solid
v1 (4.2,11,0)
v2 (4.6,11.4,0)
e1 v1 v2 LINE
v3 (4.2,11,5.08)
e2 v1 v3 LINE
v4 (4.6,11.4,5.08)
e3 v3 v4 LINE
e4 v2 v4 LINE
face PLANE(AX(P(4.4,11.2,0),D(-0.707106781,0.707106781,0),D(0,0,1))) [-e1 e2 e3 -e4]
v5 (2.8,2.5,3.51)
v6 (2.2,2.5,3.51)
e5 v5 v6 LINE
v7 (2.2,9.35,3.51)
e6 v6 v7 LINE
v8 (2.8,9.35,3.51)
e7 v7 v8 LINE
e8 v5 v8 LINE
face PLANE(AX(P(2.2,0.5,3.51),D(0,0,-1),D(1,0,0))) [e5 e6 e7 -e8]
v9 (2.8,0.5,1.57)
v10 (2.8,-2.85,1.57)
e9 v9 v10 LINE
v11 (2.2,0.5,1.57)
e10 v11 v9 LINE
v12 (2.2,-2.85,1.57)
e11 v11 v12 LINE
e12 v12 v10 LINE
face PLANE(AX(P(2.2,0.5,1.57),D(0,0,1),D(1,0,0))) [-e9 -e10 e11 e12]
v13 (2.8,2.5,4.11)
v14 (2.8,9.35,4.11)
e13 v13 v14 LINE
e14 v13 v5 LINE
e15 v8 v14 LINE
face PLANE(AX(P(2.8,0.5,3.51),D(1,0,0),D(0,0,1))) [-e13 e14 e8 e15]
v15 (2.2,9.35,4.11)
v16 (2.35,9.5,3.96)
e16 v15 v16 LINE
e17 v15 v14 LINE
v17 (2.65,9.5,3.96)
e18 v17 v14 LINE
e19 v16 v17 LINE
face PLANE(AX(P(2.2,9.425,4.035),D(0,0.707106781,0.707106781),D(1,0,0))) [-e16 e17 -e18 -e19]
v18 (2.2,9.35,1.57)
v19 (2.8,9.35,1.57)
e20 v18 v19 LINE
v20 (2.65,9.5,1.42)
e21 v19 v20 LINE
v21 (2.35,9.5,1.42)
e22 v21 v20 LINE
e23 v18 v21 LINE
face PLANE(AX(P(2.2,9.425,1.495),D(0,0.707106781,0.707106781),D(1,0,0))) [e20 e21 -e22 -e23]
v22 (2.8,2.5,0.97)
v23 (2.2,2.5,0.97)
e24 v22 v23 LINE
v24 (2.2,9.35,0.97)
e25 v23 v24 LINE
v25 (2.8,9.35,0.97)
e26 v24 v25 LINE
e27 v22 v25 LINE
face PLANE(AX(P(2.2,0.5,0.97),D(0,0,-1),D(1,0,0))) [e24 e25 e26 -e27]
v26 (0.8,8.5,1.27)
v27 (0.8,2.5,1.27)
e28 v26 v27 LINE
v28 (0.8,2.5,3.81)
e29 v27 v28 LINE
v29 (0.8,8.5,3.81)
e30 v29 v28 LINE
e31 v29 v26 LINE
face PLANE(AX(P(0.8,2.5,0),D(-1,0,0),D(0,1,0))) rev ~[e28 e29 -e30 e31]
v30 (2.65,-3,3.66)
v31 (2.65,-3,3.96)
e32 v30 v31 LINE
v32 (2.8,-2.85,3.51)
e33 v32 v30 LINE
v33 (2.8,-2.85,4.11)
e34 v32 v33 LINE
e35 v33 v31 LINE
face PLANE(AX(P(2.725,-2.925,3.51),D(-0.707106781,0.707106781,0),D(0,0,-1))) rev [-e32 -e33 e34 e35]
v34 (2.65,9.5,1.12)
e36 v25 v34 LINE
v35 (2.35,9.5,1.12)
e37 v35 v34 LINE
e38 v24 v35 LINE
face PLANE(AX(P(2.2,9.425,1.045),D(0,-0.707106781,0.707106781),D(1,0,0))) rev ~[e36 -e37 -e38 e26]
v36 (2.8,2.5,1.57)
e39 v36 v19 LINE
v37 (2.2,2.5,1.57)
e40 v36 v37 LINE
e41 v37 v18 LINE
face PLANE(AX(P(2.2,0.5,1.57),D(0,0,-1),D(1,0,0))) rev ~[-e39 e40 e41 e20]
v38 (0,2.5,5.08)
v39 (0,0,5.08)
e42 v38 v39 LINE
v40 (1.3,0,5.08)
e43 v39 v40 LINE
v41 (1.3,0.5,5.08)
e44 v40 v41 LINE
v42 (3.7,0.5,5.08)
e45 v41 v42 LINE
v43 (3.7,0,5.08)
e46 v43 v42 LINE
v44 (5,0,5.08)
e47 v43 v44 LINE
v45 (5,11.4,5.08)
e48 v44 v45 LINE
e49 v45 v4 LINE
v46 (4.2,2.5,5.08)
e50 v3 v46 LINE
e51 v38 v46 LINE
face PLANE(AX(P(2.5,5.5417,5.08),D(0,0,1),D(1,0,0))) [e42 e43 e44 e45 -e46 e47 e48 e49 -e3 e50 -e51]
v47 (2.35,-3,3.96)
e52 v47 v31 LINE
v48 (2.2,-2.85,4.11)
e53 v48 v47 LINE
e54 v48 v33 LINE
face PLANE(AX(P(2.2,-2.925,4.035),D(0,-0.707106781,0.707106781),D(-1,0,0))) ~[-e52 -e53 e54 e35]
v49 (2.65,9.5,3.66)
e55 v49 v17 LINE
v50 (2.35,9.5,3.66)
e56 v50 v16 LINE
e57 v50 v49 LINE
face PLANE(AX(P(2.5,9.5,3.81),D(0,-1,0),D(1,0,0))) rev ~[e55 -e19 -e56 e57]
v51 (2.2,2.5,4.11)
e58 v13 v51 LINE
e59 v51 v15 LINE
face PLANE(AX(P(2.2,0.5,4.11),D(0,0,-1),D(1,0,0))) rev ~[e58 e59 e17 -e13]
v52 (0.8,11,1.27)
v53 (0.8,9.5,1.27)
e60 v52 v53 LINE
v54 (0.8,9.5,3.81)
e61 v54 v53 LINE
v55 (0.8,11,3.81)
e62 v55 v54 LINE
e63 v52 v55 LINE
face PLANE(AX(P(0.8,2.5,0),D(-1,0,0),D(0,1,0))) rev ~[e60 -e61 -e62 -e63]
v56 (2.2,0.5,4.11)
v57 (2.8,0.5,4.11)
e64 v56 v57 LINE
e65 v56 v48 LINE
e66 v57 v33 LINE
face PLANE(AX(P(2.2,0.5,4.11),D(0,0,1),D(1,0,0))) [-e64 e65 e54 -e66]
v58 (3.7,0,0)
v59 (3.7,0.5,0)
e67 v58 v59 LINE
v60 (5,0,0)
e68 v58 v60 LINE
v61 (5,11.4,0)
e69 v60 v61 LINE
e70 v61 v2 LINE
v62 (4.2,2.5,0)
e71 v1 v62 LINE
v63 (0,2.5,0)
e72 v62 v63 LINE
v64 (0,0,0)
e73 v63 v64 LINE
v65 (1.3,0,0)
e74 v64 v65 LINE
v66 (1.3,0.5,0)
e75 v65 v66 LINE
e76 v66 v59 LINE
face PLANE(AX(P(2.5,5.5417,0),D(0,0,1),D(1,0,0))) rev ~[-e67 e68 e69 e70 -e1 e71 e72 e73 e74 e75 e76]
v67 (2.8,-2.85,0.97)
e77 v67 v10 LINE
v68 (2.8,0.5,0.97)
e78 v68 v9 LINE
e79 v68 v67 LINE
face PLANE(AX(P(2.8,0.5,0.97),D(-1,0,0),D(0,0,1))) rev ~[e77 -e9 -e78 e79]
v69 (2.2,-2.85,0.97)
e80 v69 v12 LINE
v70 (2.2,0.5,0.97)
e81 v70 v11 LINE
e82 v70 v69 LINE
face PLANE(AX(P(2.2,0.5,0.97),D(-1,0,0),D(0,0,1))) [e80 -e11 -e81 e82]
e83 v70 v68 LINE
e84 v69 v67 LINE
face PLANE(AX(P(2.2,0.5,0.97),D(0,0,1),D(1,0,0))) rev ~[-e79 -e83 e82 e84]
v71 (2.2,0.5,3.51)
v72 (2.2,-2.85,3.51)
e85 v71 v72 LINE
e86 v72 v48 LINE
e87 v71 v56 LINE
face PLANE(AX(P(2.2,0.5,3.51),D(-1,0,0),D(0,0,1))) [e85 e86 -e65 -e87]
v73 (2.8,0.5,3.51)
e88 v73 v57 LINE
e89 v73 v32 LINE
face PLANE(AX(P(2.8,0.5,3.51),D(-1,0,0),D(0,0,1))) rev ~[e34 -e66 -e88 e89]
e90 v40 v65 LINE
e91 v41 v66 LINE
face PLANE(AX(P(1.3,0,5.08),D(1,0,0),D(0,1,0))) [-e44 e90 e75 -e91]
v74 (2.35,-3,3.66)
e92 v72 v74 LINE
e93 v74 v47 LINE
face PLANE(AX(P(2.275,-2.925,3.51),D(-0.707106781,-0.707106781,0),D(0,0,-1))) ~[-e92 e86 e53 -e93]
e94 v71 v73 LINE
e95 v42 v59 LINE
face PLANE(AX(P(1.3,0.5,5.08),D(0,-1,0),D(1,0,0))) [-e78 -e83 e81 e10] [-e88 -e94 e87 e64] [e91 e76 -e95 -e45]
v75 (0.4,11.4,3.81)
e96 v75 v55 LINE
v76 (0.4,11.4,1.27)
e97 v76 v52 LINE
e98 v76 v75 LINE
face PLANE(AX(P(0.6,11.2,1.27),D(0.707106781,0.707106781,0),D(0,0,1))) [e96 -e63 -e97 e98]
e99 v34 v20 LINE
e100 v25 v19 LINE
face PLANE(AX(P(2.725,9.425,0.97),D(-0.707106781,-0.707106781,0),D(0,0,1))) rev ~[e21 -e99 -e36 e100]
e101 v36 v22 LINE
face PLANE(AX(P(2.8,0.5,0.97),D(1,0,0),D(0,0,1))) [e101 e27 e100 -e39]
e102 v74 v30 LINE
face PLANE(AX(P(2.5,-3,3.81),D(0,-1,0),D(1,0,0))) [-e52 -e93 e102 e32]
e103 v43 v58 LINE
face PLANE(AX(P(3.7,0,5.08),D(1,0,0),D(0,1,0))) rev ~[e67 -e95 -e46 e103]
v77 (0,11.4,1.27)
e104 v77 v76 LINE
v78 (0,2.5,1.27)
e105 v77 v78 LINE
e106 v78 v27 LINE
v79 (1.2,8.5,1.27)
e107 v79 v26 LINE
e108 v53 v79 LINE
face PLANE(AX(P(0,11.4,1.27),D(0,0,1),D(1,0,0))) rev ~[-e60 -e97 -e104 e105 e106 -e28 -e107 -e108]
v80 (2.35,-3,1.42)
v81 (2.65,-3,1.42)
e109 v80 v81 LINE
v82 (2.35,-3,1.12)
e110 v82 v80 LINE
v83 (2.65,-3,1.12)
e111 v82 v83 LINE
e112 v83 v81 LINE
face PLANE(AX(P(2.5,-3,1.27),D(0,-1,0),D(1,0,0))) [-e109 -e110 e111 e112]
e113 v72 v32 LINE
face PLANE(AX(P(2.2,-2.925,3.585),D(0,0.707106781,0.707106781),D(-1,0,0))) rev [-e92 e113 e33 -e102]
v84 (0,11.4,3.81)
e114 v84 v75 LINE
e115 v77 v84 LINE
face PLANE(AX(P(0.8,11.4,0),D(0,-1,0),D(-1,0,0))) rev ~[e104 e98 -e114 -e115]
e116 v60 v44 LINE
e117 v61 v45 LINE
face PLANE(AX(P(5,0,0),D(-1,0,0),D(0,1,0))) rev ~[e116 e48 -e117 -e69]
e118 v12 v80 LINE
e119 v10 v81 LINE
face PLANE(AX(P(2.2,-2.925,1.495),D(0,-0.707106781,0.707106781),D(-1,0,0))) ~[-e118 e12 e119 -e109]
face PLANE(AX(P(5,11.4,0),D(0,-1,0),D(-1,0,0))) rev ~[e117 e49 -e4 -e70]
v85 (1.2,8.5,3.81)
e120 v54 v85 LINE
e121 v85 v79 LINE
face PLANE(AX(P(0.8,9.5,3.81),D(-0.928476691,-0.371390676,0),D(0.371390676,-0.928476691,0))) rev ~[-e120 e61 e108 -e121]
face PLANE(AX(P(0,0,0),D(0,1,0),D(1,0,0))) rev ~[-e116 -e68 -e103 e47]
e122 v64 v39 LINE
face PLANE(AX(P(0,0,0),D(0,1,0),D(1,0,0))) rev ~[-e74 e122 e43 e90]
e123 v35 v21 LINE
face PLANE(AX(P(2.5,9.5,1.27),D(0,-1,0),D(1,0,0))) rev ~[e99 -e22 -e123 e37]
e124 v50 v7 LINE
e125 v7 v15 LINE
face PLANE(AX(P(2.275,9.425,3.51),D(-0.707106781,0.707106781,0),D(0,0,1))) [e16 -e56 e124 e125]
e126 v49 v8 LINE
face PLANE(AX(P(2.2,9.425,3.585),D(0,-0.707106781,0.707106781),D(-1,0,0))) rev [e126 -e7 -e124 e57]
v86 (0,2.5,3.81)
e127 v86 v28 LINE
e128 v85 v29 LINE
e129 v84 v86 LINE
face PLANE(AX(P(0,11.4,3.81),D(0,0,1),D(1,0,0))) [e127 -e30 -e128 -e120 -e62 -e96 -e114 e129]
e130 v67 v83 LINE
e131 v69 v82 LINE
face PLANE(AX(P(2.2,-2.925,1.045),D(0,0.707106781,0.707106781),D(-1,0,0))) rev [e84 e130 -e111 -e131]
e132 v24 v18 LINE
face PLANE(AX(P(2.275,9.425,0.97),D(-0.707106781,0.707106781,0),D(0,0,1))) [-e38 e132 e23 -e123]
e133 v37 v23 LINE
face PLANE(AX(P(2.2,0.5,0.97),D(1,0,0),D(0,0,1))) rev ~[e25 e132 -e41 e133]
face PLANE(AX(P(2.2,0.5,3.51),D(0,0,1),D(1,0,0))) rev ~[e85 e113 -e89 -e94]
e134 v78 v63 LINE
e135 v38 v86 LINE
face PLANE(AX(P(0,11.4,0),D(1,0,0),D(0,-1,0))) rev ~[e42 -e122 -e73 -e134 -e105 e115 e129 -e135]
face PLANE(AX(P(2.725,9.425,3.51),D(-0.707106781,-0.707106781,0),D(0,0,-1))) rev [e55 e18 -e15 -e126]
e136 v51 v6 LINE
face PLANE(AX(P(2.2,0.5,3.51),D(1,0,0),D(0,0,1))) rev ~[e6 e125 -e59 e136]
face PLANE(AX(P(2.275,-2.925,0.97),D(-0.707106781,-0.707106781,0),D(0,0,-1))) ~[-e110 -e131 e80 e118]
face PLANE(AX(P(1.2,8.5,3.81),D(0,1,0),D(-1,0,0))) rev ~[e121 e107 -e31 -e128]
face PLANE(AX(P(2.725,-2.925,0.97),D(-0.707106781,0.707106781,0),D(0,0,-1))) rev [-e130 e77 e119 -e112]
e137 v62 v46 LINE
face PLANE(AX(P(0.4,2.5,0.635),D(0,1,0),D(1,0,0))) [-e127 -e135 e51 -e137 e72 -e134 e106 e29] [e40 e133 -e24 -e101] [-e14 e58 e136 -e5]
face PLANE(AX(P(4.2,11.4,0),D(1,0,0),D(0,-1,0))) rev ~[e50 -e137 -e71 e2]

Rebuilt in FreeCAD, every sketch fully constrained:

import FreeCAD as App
import Part
import Sketcher


def edges_at(feature, points):
    """Names of the edges that pass closest to the given points."""
    edges = feature.Shape.Edges
    near = lambda p: min(range(len(edges)), key=lambda i: edges[i].distToShape(Part.Vertex(*p))[0])
    return sorted({f"Edge{near(p) + 1}" for p in points})


def add_polygon(sketch, points):
    """Adds a closed chain of lines whose ends are joined by coincident constraints."""
    first, n = sketch.GeometryCount, len(points)
    for a, b in zip(points, points[1:] + points[:1]):
        sketch.addGeometry(Part.LineSegment(App.Vector(*a, 0), App.Vector(*b, 0)), False)
    for i in range(n):
        sketch.addConstraint(Sketcher.Constraint("Coincident", first + i, 2, first + (i + 1) % n, 1))

doc = App.newDocument("Part")
body = doc.addObject("PartDesign::Body", "Body")

# Sketch on XY plane
sketch1 = body.newObject("Sketcher::SketchObject", "Sketch")
sketch1.AttachmentSupport = (doc.getObject("XY_Plane"), [""])
sketch1.MapMode = "FlatFace"
add_polygon(sketch1, [(0, 11.4), (0, 0), (5, 0), (5, 11.4), (4.2, 11.4), (4.2, 2.5), (0.8, 2.5), (0.8, 11.4)])  # lines 0-7
sketch1.addConstraint(Sketcher.Constraint("Vertical", 0))
sketch1.addConstraint(Sketcher.Constraint("Horizontal", 1))
sketch1.addConstraint(Sketcher.Constraint("Vertical", 2))
sketch1.addConstraint(Sketcher.Constraint("Horizontal", 3))
sketch1.addConstraint(Sketcher.Constraint("Vertical", 4))
sketch1.addConstraint(Sketcher.Constraint("Horizontal", 5))
sketch1.addConstraint(Sketcher.Constraint("Vertical", 6))
sketch1.addConstraint(Sketcher.Constraint("Horizontal", 7))
sketch1.addConstraint(Sketcher.Constraint("Coincident", 0, 2, -1, 1))
sketch1.addConstraint(Sketcher.Constraint("Horizontal", 3, 2, 6, 2))
sketch1.addConstraint(Sketcher.Constraint("Equal", 3, 7))
sketch1.addConstraint(Sketcher.Constraint("DistanceX", 1, 1, 1, 2, 5.0))
sketch1.addConstraint(Sketcher.Constraint("DistanceX", 3, 2, 3, 1, 0.8))
sketch1.addConstraint(Sketcher.Constraint("DistanceY", 0, 2, 0, 1, 11.4))
sketch1.addConstraint(Sketcher.Constraint("DistanceY", 4, 2, 4, 1, 8.9))
pad1 = body.newObject("PartDesign::Pad", "Pad")
pad1.Profile = sketch1
pad1.Length = 5.08

# Sketch on XZ plane
sketch2 = body.newObject("Sketcher::SketchObject", "Sketch001")
sketch2.AttachmentSupport = (doc.getObject("XZ_Plane"), [""])
sketch2.MapMode = "FlatFace"
sketch2.AttachmentOffset = App.Placement(App.Vector(0, 0, -11.4), App.Rotation())
add_polygon(sketch2, [(0, 0), (0, 1.3), (0.8, 1.3), (0.8, 0)])  # lines 0-3
add_polygon(sketch2, [(0, 3.8), (0, 5.1), (0.8, 5.1), (0.8, 3.8)])  # lines 4-7
sketch2.addConstraint(Sketcher.Constraint("Vertical", 0))
sketch2.addConstraint(Sketcher.Constraint("Horizontal", 1))
sketch2.addConstraint(Sketcher.Constraint("Vertical", 2))
sketch2.addConstraint(Sketcher.Constraint("Horizontal", 3))
sketch2.addConstraint(Sketcher.Constraint("Vertical", 4))
sketch2.addConstraint(Sketcher.Constraint("Horizontal", 5))
sketch2.addConstraint(Sketcher.Constraint("Vertical", 6))
sketch2.addConstraint(Sketcher.Constraint("Horizontal", 7))
sketch2.addConstraint(Sketcher.Constraint("Coincident", 3, 2, -1, 1))
sketch2.addConstraint(Sketcher.Constraint("PointOnObject", 4, 2, -2))
sketch2.addConstraint(Sketcher.Constraint("Vertical", 2, 2, 5, 2))
sketch2.addConstraint(Sketcher.Constraint("Equal", 2, 4))
sketch2.addConstraint(Sketcher.Constraint("DistanceX", 1, 1, 1, 2, 0.8))
sketch2.addConstraint(Sketcher.Constraint("DistanceY", 0, 1, 0, 2, 1.27))
sketch2.addConstraint(Sketcher.Constraint("DistanceY", -1, 1, 4, 2, 5.08))
pocket1 = body.newObject("PartDesign::Pocket", "Pocket")
pocket1.Profile = sketch2
pocket1.Length = 8.9
pocket1.Reversed = True

# Sketch on XY plane
sketch3 = body.newObject("Sketcher::SketchObject", "Sketch002")
sketch3.AttachmentSupport = (doc.getObject("XY_Plane"), [""])
sketch3.MapMode = "FlatFace"
sketch3.AttachmentOffset = App.Placement(App.Vector(0, 0, 5.08), App.Rotation())
add_polygon(sketch3, [(1.3, 0.5), (1.3, 0), (3.7, 0), (3.7, 0.5)])  # lines 0-3
sketch3.addConstraint(Sketcher.Constraint("Vertical", 0))
sketch3.addConstraint(Sketcher.Constraint("Horizontal", 1))
sketch3.addConstraint(Sketcher.Constraint("Vertical", 2))
sketch3.addConstraint(Sketcher.Constraint("Horizontal", 3))
sketch3.addConstraint(Sketcher.Constraint("PointOnObject", 0, 2, -1))
sketch3.addConstraint(Sketcher.Constraint("DistanceX", 1, 1, 1, 2, 2.4))
sketch3.addConstraint(Sketcher.Constraint("DistanceY", 0, 2, 0, 1, 0.5))
sketch3.addConstraint(Sketcher.Constraint("DistanceX", -1, 1, 0, 2, 1.3))
pocket2 = body.newObject("PartDesign::Pocket", "Pocket001")
pocket2.Profile = sketch3
pocket2.Type = "ThroughAll"

# Sketch on XZ plane
sketch4 = body.newObject("Sketcher::SketchObject", "Sketch003")
sketch4.AttachmentSupport = (doc.getObject("XZ_Plane"), [""])
sketch4.MapMode = "FlatFace"
sketch4.AttachmentOffset = App.Placement(App.Vector(0, 0, -0.5), App.Rotation())
add_polygon(sketch4, [(2.2, 4.1), (2.2, 3.5), (2.8, 3.5), (2.8, 4.1)])  # lines 0-3
add_polygon(sketch4, [(2.2, 1.6), (2.2, 1), (2.8, 1), (2.8, 1.6)])  # lines 4-7
sketch4.addConstraint(Sketcher.Constraint("Vertical", 0))
sketch4.addConstraint(Sketcher.Constraint("Horizontal", 1))
sketch4.addConstraint(Sketcher.Constraint("Vertical", 2))
sketch4.addConstraint(Sketcher.Constraint("Horizontal", 3))
sketch4.addConstraint(Sketcher.Constraint("Vertical", 4))
sketch4.addConstraint(Sketcher.Constraint("Horizontal", 5))
sketch4.addConstraint(Sketcher.Constraint("Vertical", 6))
sketch4.addConstraint(Sketcher.Constraint("Horizontal", 7))
sketch4.addConstraint(Sketcher.Constraint("Vertical", 3, 2, 4, 2))
sketch4.addConstraint(Sketcher.Constraint("Vertical", 2, 2, 5, 2))
sketch4.addConstraint(Sketcher.Constraint("Equal", 7, 0))
sketch4.addConstraint(Sketcher.Constraint("Equal", 2, 4))
sketch4.addConstraint(Sketcher.Constraint("DistanceX", 1, 1, 1, 2, 0.6))
sketch4.addConstraint(Sketcher.Constraint("DistanceX", -1, 1, 0, 2, 2.2))
sketch4.addConstraint(Sketcher.Constraint("DistanceY", -1, 1, 0, 2, 3.51))
sketch4.addConstraint(Sketcher.Constraint("DistanceY", -1, 1, 4, 2, 0.97))
pad2 = body.newObject("PartDesign::Pad", "Pad001")
pad2.Profile = sketch4
pad2.Type = "TwoLengths"
pad2.Length = 3.5
pad2.Length2 = 9

# Sketch on XY plane
sketch5 = body.newObject("Sketcher::SketchObject", "Sketch004")
sketch5.AttachmentSupport = (doc.getObject("XY_Plane"), [""])
sketch5.MapMode = "FlatFace"
sketch5.AttachmentOffset = App.Placement(App.Vector(0, 0, 3.81), App.Rotation())
add_polygon(sketch5, [(1.2, 8.5), (0.8, 9.5), (0.8, 8.5)])  # lines 0-2
sketch5.addConstraint(Sketcher.Constraint("Vertical", 1))
sketch5.addConstraint(Sketcher.Constraint("Horizontal", 2))
sketch5.addConstraint(Sketcher.Constraint("DistanceY", 1, 2, 1, 1, 1.0))
sketch5.addConstraint(Sketcher.Constraint("DistanceX", 2, 1, 2, 2, 0.4))
sketch5.addConstraint(Sketcher.Constraint("DistanceX", -1, 1, 0, 2, 0.8))
sketch5.addConstraint(Sketcher.Constraint("DistanceY", -1, 1, 0, 2, 9.5))
pad3 = body.newObject("PartDesign::Pad", "Pad002")
pad3.Profile = sketch5
pad3.Length = 2.54
pad3.Reversed = True
doc.recompute()

chamfer = body.newObject("PartDesign::Chamfer", "Chamfer")
chamfer.Base = (pad3, edges_at(pad3, [
    (2.8, 9.5, 3.81),
    (2.5, 9.5, 3.51),
    (2.2, 9.5, 3.81),
    (2.5, 9.5, 4.11),
    (2.8, -3, 3.81),
    (2.5, -3, 4.11),
    (2.2, -3, 3.81),
    (2.5, -3, 3.51),
    (2.8, 9.5, 1.27),
    (2.5, 9.5, 0.97),
    (2.2, 9.5, 1.27),
    (2.5, 9.5, 1.57),
    (2.8, -3, 1.27),
    (2.5, -3, 1.57),
    (2.2, -3, 1.27),
    (2.5, -3, 0.97),
]))
chamfer.Size = 0.15
doc.recompute()

chamfer2 = body.newObject("PartDesign::Chamfer", "Chamfer001")
chamfer2.Base = (chamfer, edges_at(chamfer, [(4.2, 11.4, 2.54), (0.8, 11.4, 2.54)]))
chamfer2.Size = 0.4

doc.recompute()
